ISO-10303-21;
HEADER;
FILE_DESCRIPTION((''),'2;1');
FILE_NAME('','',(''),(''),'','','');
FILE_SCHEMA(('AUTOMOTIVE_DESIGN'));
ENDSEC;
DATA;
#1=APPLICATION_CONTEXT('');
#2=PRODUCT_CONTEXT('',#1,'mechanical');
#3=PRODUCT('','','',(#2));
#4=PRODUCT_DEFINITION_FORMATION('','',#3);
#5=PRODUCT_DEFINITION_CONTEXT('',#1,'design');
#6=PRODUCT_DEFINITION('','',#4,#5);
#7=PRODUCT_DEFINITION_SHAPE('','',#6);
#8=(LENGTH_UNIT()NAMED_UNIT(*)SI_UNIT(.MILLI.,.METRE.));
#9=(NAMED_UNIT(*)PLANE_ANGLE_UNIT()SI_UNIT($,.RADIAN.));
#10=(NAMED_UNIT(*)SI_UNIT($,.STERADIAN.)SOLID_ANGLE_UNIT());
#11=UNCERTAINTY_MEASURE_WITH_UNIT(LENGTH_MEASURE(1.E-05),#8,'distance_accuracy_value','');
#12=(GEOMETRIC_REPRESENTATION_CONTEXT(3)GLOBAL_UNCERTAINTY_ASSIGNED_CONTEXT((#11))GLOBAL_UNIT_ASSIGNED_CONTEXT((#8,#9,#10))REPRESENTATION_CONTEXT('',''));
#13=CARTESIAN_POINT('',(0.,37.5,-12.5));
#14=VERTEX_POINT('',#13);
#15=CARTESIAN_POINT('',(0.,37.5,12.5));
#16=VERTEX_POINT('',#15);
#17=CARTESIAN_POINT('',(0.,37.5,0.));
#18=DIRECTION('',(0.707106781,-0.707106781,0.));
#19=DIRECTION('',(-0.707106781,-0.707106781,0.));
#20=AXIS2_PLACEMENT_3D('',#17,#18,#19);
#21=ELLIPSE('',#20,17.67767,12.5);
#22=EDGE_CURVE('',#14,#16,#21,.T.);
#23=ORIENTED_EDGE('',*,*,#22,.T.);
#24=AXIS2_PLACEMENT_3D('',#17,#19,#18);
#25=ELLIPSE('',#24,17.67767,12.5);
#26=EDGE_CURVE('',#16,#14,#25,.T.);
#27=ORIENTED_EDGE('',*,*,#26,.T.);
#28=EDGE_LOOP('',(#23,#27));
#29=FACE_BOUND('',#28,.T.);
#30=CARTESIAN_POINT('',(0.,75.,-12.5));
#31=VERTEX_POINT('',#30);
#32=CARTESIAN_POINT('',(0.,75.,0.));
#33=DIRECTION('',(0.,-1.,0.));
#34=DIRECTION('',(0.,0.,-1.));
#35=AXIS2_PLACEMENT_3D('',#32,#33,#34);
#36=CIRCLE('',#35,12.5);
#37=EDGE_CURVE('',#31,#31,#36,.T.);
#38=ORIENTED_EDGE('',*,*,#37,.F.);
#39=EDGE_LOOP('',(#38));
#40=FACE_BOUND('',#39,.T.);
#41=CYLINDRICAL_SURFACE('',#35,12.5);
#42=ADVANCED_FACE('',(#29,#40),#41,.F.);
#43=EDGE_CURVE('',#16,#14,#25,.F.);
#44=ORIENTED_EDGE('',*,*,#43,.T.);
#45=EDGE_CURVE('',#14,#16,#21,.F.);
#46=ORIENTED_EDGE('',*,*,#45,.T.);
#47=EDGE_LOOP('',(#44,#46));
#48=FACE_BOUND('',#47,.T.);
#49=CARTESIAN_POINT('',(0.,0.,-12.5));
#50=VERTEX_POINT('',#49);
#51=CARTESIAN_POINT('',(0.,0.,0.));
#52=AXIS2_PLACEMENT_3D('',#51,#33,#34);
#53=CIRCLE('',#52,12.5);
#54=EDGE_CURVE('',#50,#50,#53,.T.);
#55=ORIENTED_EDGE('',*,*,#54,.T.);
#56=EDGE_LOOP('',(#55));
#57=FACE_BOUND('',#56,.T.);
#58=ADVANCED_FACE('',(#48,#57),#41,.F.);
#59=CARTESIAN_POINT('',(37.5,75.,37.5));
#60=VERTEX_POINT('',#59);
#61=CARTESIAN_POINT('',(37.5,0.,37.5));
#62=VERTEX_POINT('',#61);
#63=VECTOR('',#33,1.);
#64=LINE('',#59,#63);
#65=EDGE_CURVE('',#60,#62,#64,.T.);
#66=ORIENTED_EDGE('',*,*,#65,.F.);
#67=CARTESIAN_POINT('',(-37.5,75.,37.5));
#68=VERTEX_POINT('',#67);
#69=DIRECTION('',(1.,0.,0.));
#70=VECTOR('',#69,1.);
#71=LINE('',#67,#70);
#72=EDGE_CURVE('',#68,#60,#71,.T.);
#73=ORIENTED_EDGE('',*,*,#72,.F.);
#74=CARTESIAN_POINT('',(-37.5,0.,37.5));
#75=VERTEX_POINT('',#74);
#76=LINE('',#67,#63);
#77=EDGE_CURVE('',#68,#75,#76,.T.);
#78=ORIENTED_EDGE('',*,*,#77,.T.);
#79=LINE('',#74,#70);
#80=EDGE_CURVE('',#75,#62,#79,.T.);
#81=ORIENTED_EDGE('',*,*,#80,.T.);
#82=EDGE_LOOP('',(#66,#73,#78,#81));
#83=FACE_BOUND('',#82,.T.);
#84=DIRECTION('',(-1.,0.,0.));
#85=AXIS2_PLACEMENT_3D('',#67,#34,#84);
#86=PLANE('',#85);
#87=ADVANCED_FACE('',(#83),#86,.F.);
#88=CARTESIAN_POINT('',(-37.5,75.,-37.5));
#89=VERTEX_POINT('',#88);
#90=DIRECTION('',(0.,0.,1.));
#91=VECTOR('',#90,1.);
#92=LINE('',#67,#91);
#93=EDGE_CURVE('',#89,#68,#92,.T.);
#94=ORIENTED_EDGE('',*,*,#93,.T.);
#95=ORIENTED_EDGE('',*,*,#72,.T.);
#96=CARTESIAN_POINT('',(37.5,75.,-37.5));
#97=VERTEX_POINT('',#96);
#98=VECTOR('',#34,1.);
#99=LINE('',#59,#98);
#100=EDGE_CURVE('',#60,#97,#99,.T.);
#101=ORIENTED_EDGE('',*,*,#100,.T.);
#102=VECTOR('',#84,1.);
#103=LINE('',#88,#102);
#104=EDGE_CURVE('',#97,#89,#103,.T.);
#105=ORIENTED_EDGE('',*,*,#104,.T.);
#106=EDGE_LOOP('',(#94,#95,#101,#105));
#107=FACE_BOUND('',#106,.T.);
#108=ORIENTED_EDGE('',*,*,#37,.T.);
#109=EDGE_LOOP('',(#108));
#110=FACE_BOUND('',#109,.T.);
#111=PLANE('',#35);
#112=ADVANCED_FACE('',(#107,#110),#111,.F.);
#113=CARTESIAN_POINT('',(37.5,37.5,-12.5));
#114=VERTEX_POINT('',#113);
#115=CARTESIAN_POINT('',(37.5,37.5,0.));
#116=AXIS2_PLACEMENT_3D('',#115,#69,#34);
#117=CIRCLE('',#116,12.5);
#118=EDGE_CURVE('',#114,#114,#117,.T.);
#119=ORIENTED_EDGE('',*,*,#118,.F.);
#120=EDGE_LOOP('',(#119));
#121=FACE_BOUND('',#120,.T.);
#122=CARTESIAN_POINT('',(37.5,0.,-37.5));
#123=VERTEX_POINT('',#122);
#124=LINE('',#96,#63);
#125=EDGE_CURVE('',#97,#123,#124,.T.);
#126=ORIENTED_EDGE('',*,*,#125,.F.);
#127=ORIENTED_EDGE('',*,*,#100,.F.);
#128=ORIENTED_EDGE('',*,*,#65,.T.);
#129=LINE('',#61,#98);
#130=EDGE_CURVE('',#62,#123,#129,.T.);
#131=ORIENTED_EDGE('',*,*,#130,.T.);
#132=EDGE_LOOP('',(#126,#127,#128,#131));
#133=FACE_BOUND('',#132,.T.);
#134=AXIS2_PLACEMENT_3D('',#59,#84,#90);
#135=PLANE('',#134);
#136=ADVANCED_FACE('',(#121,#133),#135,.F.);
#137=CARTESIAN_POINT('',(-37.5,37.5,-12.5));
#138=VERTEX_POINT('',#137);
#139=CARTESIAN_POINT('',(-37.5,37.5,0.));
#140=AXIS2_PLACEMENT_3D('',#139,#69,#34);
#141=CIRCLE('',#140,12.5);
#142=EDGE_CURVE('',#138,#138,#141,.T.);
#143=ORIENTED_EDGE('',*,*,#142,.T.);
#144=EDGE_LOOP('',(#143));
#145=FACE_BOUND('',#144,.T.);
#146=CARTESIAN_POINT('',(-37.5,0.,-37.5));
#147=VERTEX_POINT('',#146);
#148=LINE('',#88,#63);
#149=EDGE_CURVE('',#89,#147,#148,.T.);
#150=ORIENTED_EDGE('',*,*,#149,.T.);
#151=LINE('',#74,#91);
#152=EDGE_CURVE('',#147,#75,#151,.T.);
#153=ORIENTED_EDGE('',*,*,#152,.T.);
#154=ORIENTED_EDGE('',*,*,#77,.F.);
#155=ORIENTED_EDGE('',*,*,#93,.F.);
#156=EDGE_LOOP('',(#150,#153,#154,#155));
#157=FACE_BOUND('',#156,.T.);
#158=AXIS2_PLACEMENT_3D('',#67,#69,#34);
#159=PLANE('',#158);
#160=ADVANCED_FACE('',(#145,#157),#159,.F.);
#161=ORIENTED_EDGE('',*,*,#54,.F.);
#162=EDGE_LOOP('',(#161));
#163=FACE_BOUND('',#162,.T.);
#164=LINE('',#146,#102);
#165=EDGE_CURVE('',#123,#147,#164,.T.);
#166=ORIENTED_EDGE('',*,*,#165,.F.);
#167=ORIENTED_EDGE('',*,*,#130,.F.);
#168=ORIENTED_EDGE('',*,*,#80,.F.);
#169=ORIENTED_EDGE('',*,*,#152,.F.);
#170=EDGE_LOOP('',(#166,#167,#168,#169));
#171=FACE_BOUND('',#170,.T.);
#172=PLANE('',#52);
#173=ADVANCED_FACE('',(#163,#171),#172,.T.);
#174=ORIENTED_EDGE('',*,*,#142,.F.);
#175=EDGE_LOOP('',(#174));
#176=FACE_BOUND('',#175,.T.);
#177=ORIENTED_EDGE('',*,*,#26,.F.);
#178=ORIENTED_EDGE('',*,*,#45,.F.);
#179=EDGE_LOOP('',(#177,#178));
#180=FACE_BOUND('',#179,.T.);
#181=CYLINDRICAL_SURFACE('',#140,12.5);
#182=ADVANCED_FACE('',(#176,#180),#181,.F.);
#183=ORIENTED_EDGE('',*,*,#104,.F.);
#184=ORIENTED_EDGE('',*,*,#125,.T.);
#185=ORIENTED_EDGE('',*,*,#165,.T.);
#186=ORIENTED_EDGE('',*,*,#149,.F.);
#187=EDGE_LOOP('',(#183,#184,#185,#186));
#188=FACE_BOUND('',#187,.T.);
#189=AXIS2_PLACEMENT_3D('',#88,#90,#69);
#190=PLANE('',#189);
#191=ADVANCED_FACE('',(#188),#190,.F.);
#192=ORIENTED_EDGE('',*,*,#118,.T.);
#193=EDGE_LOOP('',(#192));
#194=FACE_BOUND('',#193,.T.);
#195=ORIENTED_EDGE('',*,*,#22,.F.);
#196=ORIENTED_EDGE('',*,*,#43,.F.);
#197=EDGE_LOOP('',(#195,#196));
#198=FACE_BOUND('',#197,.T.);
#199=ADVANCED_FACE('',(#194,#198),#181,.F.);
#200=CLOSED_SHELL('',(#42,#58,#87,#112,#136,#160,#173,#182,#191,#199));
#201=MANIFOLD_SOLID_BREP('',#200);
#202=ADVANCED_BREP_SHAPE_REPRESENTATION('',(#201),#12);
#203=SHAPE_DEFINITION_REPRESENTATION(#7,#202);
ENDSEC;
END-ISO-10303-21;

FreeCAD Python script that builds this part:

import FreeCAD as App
import Part
import Sketcher

V = App.Vector


def add_polygon(sketch, points):
    """Adds a closed chain of lines whose ends are joined by coincident constraints."""
    first, n = sketch.GeometryCount, len(points)
    for a, b in zip(points, points[1:] + points[:1]):
        sketch.addGeometry(Part.LineSegment(App.Vector(*a, 0), App.Vector(*b, 0)), False)
    for i in range(n):
        sketch.addConstraint(Sketcher.Constraint("Coincident", first + i, 2, first + (i + 1) % n, 1))

doc = App.newDocument("Part")
body = doc.addObject("PartDesign::Body", "Body")

sketch1 = body.newObject("Sketcher::SketchObject", "Sketch")
sketch1.AttachmentSupport = (doc.getObject("XZ_Plane"), [""])
sketch1.MapMode = "FlatFace"
add_polygon(sketch1, [(-38, -38), (-38, 38), (38, 38), (38, -38)])
sketch1.addConstraint([
    Sketcher.Constraint("Vertical", 0),
    Sketcher.Constraint("Horizontal", 1),
    Sketcher.Constraint("Vertical", 2),
    Sketcher.Constraint("Horizontal", 3),
    Sketcher.Constraint("Symmetric", 0, 2, 2, 2, -1, 1),
    Sketcher.Constraint("Equal", 3, 0),
    Sketcher.Constraint("DistanceX", 1, 1, 1, 2, 75.0),
])
pad1 = body.newObject("PartDesign::Pad", "Pad")
pad1.Profile = sketch1
pad1.Length = 75
pad1.Reversed = True

sketch2 = body.newObject("Sketcher::SketchObject", "Sketch001")
sketch2.AttachmentSupport = (doc.getObject("XZ_Plane"), [""])
sketch2.MapMode = "FlatFace"
sketch2.addGeometry(Part.Circle(V(0, 0, 0), V(0, 0, 1), 12), False)
sketch2.addConstraint([
    Sketcher.Constraint("Coincident", 0, 3, -1, 1),
    Sketcher.Constraint("Diameter", 0, 25.0),
])
pocket1 = body.newObject("PartDesign::Pocket", "Pocket")
pocket1.Profile = sketch2
pocket1.Type = "ThroughAll"

sketch3 = body.newObject("Sketcher::SketchObject", "Sketch002")
sketch3.AttachmentSupport = (doc.getObject("YZ_Plane"), [""])
sketch3.MapMode = "FlatFace"
sketch3.AttachmentOffset = App.Placement(V(0, 0, 37.5), App.Rotation())
sketch3.addGeometry(Part.Circle(V(38, 0, 0), V(0, 0, 1), 12), False)
sketch3.addConstraint([
    Sketcher.Constraint("PointOnObject", 0, 3, -1),
    Sketcher.Constraint("Diameter", 0, 25.0),
    Sketcher.Constraint("DistanceX", -1, 1, 0, 3, 37.5),
])
pocket2 = body.newObject("PartDesign::Pocket", "Pocket001")
pocket2.Profile = sketch3
pocket2.Type = "ThroughAll"

doc.recompute()
